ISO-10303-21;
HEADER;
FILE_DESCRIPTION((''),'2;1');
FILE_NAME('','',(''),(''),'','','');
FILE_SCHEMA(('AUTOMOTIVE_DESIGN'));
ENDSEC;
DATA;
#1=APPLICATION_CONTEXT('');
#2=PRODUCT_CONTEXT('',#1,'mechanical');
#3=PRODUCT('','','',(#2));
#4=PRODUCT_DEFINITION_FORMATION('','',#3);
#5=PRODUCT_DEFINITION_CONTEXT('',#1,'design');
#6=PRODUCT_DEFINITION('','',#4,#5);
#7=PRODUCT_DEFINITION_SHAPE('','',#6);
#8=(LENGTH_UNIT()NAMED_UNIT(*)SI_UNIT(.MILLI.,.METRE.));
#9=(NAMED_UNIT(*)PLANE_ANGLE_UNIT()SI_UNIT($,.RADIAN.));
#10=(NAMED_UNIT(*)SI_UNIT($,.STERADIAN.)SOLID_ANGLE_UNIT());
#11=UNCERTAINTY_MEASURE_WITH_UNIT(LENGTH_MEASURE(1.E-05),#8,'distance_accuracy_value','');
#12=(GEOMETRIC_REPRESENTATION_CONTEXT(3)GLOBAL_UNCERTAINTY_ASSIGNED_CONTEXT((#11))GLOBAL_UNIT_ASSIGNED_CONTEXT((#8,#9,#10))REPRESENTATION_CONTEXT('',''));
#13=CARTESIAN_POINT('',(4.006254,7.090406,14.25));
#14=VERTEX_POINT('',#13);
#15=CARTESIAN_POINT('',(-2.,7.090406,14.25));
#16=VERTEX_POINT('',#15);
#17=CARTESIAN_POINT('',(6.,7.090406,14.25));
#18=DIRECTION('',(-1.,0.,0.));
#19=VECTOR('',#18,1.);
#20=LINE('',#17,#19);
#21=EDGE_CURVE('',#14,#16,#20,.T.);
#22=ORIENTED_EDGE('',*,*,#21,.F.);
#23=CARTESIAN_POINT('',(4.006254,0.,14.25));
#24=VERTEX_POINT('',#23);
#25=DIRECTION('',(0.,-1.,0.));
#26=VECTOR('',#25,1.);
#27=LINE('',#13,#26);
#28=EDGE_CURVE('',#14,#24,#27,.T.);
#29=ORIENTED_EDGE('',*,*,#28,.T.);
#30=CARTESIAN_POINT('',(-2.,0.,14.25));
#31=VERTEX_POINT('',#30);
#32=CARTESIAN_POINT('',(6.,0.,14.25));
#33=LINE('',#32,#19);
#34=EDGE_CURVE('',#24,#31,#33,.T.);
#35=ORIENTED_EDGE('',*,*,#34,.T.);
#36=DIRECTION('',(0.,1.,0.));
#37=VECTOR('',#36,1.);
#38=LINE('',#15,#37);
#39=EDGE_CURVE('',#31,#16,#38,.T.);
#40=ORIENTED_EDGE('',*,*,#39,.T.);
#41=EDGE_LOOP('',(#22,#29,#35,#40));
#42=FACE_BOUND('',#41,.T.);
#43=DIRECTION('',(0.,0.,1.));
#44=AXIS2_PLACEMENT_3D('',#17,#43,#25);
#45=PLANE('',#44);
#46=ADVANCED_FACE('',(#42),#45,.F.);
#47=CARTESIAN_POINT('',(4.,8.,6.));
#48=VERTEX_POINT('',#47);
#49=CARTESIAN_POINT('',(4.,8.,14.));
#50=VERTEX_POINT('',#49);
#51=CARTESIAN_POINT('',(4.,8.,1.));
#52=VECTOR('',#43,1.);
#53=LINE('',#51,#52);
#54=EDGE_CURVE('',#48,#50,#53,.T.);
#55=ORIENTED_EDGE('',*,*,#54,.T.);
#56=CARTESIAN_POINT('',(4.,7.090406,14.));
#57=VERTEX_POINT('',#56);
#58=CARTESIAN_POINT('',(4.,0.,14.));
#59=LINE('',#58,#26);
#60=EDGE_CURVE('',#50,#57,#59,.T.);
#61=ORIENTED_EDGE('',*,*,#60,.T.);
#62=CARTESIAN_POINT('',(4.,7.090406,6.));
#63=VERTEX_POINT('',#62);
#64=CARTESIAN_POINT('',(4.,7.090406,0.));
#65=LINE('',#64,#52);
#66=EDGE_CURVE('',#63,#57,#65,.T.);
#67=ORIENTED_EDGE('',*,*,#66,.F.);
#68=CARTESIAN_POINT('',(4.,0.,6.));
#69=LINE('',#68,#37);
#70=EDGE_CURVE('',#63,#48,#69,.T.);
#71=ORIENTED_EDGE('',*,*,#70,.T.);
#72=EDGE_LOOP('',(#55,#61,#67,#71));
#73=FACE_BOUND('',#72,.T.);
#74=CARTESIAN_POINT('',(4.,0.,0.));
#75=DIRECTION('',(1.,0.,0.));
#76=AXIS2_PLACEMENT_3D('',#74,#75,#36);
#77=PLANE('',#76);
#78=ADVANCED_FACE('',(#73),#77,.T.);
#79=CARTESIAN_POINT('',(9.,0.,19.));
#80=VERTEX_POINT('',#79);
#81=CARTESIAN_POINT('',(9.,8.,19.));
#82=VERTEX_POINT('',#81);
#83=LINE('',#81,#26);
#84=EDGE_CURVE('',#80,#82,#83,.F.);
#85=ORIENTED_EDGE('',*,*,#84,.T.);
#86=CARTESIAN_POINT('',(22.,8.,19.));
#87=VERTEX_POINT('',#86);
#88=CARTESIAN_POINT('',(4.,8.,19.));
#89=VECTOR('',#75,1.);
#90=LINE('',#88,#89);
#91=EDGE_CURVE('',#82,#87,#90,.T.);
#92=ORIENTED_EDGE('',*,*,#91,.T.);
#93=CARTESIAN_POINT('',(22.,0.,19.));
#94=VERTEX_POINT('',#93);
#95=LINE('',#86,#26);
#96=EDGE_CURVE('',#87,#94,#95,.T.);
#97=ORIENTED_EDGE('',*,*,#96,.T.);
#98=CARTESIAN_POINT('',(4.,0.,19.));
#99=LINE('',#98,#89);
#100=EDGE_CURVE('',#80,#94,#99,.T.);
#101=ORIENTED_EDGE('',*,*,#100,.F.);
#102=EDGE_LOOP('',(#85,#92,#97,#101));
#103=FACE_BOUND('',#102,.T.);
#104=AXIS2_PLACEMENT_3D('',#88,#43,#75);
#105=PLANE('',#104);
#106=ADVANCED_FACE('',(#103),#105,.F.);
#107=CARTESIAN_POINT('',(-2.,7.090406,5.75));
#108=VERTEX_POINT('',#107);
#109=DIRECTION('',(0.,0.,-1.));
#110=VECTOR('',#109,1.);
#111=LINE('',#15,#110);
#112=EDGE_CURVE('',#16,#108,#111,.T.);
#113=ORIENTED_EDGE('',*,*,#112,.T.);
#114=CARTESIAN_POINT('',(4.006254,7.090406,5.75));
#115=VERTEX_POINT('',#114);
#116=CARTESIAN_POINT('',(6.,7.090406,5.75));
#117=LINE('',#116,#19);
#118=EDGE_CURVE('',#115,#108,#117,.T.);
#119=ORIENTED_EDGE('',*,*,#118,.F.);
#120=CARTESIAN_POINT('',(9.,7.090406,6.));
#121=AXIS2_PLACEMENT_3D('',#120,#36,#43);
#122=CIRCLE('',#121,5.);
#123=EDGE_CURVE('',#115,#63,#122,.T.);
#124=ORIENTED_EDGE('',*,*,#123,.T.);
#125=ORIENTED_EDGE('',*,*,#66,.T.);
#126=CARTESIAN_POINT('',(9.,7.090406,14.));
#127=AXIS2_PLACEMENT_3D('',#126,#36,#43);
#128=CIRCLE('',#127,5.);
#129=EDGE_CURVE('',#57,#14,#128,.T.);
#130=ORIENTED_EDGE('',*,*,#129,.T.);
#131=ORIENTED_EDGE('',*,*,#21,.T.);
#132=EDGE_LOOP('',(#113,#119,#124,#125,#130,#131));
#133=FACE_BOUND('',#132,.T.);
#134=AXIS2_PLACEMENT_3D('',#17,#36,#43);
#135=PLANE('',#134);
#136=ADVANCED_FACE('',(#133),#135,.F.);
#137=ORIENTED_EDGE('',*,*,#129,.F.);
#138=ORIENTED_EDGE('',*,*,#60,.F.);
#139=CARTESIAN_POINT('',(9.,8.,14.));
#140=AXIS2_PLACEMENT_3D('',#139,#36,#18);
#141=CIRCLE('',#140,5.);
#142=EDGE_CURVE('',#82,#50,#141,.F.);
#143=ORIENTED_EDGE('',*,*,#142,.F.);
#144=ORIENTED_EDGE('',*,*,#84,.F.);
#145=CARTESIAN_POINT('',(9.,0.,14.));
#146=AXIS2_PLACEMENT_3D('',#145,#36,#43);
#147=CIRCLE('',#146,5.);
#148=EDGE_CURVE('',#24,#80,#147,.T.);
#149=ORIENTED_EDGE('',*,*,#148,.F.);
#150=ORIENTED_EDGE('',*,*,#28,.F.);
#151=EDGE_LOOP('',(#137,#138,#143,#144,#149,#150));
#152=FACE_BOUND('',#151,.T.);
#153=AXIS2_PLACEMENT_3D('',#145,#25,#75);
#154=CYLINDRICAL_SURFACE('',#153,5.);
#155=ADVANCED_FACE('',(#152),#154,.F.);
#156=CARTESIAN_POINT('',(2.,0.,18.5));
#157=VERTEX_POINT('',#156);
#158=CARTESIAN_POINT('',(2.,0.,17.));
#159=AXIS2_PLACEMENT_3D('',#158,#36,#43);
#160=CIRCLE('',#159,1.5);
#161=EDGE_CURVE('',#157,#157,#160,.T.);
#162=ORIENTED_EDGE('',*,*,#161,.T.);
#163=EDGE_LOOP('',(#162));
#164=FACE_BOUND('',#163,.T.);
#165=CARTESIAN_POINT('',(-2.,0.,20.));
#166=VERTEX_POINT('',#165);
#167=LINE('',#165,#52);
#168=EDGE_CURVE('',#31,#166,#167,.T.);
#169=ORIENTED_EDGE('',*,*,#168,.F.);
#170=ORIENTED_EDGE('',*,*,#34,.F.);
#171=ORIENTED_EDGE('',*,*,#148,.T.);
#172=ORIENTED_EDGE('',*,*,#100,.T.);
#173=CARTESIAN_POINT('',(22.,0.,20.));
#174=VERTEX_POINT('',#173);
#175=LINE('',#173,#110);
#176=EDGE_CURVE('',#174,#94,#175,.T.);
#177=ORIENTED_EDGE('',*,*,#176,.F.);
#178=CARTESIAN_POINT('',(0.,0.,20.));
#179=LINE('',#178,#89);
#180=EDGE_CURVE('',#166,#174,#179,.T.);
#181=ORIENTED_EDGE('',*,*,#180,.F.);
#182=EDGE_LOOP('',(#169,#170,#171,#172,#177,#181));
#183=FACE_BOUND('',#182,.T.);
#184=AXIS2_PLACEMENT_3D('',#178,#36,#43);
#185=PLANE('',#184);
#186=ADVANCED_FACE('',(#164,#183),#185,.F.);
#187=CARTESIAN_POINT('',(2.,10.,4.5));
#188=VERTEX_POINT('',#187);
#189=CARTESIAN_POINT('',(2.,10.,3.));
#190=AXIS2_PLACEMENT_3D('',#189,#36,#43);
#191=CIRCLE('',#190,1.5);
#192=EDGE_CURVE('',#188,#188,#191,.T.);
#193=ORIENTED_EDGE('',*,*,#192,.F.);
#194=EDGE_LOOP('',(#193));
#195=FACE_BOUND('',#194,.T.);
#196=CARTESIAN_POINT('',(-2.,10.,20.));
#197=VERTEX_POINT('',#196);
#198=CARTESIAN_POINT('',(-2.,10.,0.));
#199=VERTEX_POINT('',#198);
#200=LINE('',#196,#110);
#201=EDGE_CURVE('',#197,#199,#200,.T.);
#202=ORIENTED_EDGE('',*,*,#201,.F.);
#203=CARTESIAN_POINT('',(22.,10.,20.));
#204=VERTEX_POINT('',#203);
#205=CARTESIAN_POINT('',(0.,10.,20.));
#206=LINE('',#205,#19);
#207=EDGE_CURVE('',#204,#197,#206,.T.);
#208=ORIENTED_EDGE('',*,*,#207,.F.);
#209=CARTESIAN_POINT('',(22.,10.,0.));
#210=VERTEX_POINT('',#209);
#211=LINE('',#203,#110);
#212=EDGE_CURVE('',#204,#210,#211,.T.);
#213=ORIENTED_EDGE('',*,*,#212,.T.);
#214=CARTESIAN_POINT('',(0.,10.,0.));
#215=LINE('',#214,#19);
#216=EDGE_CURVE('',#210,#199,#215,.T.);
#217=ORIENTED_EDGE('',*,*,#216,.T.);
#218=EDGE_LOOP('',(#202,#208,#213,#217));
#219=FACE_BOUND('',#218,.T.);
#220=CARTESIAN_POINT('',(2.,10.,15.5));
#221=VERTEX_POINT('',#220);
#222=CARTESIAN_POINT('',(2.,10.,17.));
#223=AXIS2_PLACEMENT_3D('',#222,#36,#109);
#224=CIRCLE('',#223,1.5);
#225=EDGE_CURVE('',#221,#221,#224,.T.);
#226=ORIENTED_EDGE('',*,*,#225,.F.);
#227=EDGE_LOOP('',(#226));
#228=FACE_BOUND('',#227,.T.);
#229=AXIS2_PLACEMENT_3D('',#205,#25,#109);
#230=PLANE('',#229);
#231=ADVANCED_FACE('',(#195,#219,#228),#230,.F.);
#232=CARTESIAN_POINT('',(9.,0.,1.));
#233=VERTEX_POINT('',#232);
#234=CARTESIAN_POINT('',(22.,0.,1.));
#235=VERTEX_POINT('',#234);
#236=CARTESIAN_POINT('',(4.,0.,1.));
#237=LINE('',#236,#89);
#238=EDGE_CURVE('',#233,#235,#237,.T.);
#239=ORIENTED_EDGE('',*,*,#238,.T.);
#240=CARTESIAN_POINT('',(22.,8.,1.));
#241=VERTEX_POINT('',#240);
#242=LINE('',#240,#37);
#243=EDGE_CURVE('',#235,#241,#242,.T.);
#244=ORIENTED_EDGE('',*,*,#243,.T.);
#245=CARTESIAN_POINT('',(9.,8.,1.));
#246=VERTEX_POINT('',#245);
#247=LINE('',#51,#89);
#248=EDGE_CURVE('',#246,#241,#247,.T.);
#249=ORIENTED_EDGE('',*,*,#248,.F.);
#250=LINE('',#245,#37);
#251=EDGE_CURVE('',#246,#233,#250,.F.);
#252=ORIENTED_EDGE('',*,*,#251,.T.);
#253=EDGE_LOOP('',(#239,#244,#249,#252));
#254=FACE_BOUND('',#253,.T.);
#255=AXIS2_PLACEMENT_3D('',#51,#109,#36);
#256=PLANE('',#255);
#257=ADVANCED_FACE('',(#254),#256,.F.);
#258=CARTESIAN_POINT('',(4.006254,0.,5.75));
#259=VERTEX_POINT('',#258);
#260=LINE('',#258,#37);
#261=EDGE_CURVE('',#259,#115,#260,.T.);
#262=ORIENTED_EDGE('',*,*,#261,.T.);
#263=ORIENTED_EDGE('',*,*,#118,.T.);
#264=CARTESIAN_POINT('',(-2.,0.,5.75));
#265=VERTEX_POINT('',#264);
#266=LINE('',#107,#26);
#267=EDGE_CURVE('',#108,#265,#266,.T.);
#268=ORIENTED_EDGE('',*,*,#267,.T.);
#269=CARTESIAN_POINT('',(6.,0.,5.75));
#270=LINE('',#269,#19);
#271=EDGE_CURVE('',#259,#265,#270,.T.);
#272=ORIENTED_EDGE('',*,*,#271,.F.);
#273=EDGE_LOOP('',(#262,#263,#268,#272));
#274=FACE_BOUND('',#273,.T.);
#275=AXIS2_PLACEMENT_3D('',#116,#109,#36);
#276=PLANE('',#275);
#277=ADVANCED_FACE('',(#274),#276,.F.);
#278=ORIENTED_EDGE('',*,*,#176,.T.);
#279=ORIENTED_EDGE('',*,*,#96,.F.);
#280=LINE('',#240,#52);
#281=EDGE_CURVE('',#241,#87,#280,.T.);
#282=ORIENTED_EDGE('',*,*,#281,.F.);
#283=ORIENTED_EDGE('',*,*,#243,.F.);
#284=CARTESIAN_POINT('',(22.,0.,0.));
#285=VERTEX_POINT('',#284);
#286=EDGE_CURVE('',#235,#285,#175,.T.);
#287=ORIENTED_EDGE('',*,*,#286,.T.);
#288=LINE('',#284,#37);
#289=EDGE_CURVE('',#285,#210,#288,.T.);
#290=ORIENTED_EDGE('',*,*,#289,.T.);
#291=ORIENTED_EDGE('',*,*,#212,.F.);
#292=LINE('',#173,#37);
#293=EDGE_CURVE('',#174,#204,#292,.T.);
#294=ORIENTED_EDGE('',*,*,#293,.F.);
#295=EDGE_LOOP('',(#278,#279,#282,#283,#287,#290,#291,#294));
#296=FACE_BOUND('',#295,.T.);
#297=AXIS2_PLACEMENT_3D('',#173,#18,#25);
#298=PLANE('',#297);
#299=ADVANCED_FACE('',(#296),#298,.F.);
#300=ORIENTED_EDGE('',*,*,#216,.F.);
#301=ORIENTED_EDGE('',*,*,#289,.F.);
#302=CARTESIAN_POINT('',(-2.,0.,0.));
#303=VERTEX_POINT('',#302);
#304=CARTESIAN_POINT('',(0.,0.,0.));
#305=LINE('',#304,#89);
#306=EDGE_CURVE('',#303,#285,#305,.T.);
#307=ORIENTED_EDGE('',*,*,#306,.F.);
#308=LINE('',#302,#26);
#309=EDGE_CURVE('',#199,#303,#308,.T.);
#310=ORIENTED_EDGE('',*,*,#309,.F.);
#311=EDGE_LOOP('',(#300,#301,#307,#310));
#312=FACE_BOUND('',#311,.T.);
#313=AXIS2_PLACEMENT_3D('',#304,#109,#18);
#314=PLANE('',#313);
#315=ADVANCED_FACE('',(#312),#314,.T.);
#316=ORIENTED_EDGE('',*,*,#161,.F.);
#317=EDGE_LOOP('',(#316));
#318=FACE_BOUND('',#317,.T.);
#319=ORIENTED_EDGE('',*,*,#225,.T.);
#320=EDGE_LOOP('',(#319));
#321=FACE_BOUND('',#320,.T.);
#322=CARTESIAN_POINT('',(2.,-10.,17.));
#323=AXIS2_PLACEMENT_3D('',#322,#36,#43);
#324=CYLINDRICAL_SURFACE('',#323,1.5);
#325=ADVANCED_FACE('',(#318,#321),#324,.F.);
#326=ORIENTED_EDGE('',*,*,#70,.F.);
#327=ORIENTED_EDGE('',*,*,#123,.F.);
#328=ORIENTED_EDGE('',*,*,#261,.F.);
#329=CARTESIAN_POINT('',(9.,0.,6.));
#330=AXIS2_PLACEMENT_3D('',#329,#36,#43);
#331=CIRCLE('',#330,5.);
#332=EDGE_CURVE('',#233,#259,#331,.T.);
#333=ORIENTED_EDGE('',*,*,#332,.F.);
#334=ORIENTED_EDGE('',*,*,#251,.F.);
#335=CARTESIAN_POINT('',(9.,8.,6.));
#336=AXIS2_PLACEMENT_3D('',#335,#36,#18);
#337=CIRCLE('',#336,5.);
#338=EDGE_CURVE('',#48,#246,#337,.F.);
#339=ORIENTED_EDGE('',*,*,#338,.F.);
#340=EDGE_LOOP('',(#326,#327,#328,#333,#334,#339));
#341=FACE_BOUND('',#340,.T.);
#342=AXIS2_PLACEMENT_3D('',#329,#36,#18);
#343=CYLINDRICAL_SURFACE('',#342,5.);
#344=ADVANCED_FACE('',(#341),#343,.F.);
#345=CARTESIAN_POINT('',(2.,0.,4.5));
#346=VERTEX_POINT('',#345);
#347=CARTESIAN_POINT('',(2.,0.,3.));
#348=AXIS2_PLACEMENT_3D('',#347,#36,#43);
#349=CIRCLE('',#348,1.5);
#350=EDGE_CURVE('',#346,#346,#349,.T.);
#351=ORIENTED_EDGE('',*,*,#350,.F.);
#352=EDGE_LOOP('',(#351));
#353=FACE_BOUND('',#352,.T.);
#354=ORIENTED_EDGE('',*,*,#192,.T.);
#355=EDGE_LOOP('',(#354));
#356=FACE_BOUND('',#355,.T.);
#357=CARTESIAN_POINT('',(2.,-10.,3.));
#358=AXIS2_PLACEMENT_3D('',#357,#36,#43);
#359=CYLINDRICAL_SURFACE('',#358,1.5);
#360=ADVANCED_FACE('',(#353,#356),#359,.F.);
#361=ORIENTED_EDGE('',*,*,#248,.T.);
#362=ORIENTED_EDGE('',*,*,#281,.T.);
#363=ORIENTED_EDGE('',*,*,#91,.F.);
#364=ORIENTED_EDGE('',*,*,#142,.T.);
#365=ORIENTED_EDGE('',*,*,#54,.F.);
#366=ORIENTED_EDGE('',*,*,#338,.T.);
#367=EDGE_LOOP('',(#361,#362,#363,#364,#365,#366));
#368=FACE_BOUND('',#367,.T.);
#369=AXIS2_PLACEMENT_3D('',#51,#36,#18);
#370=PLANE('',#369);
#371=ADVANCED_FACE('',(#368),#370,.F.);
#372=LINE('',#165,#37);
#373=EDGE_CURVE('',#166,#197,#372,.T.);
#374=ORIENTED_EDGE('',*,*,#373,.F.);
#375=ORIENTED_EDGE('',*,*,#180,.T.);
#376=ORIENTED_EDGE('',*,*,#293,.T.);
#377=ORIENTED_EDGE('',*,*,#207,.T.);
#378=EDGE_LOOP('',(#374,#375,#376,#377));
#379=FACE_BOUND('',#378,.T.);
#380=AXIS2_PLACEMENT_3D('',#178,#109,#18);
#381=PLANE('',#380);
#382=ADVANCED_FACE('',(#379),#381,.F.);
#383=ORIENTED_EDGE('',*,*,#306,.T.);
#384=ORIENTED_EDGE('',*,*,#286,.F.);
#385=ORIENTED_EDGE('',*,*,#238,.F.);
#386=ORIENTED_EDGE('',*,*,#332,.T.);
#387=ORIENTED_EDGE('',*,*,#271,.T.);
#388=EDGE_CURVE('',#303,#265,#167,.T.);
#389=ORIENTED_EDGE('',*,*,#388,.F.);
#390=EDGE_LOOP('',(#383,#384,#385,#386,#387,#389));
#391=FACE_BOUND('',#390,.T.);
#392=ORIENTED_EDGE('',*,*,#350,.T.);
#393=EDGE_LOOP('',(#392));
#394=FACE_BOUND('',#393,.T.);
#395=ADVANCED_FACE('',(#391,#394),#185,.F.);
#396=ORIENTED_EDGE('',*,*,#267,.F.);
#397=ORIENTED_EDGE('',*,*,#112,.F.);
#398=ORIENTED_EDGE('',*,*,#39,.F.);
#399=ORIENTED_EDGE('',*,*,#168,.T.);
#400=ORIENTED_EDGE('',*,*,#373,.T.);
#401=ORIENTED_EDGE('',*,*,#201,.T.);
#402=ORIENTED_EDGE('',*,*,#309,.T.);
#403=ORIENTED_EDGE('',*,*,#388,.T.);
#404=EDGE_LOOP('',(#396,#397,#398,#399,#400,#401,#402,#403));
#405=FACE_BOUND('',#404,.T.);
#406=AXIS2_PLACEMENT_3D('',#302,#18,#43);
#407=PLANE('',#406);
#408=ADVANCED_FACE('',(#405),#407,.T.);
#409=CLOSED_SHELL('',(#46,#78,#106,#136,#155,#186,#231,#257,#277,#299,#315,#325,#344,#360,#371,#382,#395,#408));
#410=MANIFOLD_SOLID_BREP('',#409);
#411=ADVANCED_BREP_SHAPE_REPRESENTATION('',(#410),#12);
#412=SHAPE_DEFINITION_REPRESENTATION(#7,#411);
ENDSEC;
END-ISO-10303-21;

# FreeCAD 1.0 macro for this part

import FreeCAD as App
import Part
import Sketcher
Q = App.Units.Quantity


def edges_at(feature, points):
    """Names of the edges that pass closest to the given points."""
    edges = feature.Shape.Edges
    near = lambda p: min(range(len(edges)), key=lambda i: edges[i].distToShape(Part.Vertex(*p))[0])
    return sorted({f"Edge{near(p) + 1}" for p in points})


def add_polygon(sketch, points):
    """Adds a closed chain of lines whose ends are joined by coincident constraints."""
    first, n = sketch.GeometryCount, len(points)
    for a, b in zip(points, points[1:] + points[:1]):
        sketch.addGeometry(Part.LineSegment(App.Vector(*a, 0), App.Vector(*b, 0)), False)
    for i in range(n):
        sketch.addConstraint(Sketcher.Constraint("Coincident", first + i, 2, first + (i + 1) % n, 1))

doc = App.newDocument("Part")
body = doc.addObject("PartDesign::Body", "Body")

# Sketch on XY plane
sketch1 = body.newObject("Sketcher::SketchObject", "Sketch")
sketch1.AttachmentSupport = (doc.getObject("XY_Plane"), [""])
sketch1.MapMode = "FlatFace"
add_polygon(sketch1, [(0, 10), (0, 0), (22, 0), (22, 10)])  # lines 0-3
sketch1.addConstraint([
    Sketcher.Constraint("Vertical", 0),
    Sketcher.Constraint("Horizontal", 1),
    Sketcher.Constraint("Vertical", 2),
    Sketcher.Constraint("Horizontal", 3),
    Sketcher.Constraint("Coincident", 0, 2, -1, 1),
    Sketcher.Constraint("DistanceX", 1, 1, 1, 2, Q("22 mm")),
    Sketcher.Constraint("DistanceY", 0, 2, 0, 1, Q("10 mm")),
])
pad1 = body.newObject("PartDesign::Pad", "Pad")
pad1.Profile = sketch1
pad1.Length = 20

# Sketch on XZ plane
sketch2 = body.newObject("Sketcher::SketchObject", "Sketch001")
sketch2.AttachmentSupport = (doc.getObject("XZ_Plane"), [""])
sketch2.MapMode = "FlatFace"
sketch2.AttachmentOffset = App.Placement(App.Vector(0, 0, -10), App.Rotation())
sketch2.addGeometry([
    Part.Circle(App.Vector(2, 3, 0), App.Vector(0, 0, 1), 1.5),
    Part.Circle(App.Vector(2, 17, 0), App.Vector(0, 0, 1), 1.5),
], False)
sketch2.addConstraint([
    Sketcher.Constraint("Equal", 0, 1),
    Sketcher.Constraint("Vertical", 0, 3, 1, 3),
    Sketcher.Constraint("Diameter", 0, Q("3 mm")),
    Sketcher.Constraint("DistanceX", -1, 1, 0, 3, Q("2 mm")),
    Sketcher.Constraint("DistanceY", -1, 1, 0, 3, Q("3 mm")),
    Sketcher.Constraint("DistanceY", -1, 1, 1, 3, Q("17 mm")),
])
pocket1 = body.newObject("PartDesign::Pocket", "Pocket")
pocket1.Profile = sketch2
pocket1.Length = 20
pocket1.Reversed = True

# Sketch on YZ plane
sketch3 = body.newObject("Sketcher::SketchObject", "Sketch002")
sketch3.AttachmentSupport = (doc.getObject("YZ_Plane"), [""])
sketch3.MapMode = "FlatFace"
sketch3.AttachmentOffset = App.Placement(App.Vector(0, 0, 22), App.Rotation())
add_polygon(sketch3, [(8, 19), (0, 19), (0, 1), (8, 1)])  # lines 0-3
sketch3.addConstraint([
    Sketcher.Constraint("Horizontal", 0),
    Sketcher.Constraint("Vertical", 1),
    Sketcher.Constraint("Horizontal", 2),
    Sketcher.Constraint("Vertical", 3),
    Sketcher.Constraint("PointOnObject", 0, 2, -2),
    Sketcher.Constraint("DistanceX", 0, 2, 0, 1, Q("8 mm")),
    Sketcher.Constraint("DistanceY", 1, 2, 1, 1, Q("18 mm")),
    Sketcher.Constraint("DistanceY", -1, 1, 0, 2, Q("19 mm")),
])
pocket2 = body.newObject("PartDesign::Pocket", "Pocket001")
pocket2.Profile = sketch3
pocket2.Length = 18

# Sketch on YZ plane
sketch4 = body.newObject("Sketcher::SketchObject", "Sketch003")
sketch4.AttachmentSupport = (doc.getObject("YZ_Plane"), [""])
sketch4.MapMode = "FlatFace"
add_polygon(sketch4, [(10, 0), (0, 0), (0, 20), (10, 20)])  # lines 0-3
sketch4.addConstraint([
    Sketcher.Constraint("Horizontal", 0),
    Sketcher.Constraint("Vertical", 1),
    Sketcher.Constraint("Horizontal", 2),
    Sketcher.Constraint("Vertical", 3),
    Sketcher.Constraint("Coincident", 0, 2, -1, 1),
    Sketcher.Constraint("DistanceX", 0, 2, 0, 1, Q("10 mm")),
    Sketcher.Constraint("DistanceY", 1, 1, 1, 2, Q("20 mm")),
])
pad2 = body.newObject("PartDesign::Pad", "Pad001")
pad2.Profile = sketch4
pad2.Length = 2
pad2.Reversed = True

# Sketch on YZ plane
sketch5 = body.newObject("Sketcher::SketchObject", "Sketch004")
sketch5.AttachmentSupport = (doc.getObject("YZ_Plane"), [""])
sketch5.MapMode = "FlatFace"
sketch5.AttachmentOffset = App.Placement(App.Vector(0, 0, -2), App.Rotation())
add_polygon(sketch5, [(7.090406, 5.75), (0, 5.75), (0, 14.25), (7.090406, 14.25)])  # lines 0-3
sketch5.addConstraint([
    Sketcher.Constraint("Horizontal", 0),
    Sketcher.Constraint("Vertical", 1),
    Sketcher.Constraint("Horizontal", 2),
    Sketcher.Constraint("Vertical", 3),
    Sketcher.Constraint("PointOnObject", 0, 2, -2),
    Sketcher.Constraint("DistanceY", 1, 1, 1, 2, Q("8.5 mm")),
    Sketcher.Constraint("DistanceY", -1, 1, 0, 2, Q("5.75 mm")),
    Sketcher.Constraint("DistanceX", 0, 2, 0, 1, Q("7.090406 mm")),
])
pocket3 = body.newObject("PartDesign::Pocket", "Pocket002")
pocket3.Profile = sketch5
pocket3.Length = 8
pocket3.Reversed = True
doc.recompute()

fillet = body.newObject("PartDesign::Fillet", "Fillet")
fillet.Base = (pocket3, edges_at(pocket3, [(4, 4, 1), (4, 4, 19)]))
fillet.Radius = 5

doc.recompute()
